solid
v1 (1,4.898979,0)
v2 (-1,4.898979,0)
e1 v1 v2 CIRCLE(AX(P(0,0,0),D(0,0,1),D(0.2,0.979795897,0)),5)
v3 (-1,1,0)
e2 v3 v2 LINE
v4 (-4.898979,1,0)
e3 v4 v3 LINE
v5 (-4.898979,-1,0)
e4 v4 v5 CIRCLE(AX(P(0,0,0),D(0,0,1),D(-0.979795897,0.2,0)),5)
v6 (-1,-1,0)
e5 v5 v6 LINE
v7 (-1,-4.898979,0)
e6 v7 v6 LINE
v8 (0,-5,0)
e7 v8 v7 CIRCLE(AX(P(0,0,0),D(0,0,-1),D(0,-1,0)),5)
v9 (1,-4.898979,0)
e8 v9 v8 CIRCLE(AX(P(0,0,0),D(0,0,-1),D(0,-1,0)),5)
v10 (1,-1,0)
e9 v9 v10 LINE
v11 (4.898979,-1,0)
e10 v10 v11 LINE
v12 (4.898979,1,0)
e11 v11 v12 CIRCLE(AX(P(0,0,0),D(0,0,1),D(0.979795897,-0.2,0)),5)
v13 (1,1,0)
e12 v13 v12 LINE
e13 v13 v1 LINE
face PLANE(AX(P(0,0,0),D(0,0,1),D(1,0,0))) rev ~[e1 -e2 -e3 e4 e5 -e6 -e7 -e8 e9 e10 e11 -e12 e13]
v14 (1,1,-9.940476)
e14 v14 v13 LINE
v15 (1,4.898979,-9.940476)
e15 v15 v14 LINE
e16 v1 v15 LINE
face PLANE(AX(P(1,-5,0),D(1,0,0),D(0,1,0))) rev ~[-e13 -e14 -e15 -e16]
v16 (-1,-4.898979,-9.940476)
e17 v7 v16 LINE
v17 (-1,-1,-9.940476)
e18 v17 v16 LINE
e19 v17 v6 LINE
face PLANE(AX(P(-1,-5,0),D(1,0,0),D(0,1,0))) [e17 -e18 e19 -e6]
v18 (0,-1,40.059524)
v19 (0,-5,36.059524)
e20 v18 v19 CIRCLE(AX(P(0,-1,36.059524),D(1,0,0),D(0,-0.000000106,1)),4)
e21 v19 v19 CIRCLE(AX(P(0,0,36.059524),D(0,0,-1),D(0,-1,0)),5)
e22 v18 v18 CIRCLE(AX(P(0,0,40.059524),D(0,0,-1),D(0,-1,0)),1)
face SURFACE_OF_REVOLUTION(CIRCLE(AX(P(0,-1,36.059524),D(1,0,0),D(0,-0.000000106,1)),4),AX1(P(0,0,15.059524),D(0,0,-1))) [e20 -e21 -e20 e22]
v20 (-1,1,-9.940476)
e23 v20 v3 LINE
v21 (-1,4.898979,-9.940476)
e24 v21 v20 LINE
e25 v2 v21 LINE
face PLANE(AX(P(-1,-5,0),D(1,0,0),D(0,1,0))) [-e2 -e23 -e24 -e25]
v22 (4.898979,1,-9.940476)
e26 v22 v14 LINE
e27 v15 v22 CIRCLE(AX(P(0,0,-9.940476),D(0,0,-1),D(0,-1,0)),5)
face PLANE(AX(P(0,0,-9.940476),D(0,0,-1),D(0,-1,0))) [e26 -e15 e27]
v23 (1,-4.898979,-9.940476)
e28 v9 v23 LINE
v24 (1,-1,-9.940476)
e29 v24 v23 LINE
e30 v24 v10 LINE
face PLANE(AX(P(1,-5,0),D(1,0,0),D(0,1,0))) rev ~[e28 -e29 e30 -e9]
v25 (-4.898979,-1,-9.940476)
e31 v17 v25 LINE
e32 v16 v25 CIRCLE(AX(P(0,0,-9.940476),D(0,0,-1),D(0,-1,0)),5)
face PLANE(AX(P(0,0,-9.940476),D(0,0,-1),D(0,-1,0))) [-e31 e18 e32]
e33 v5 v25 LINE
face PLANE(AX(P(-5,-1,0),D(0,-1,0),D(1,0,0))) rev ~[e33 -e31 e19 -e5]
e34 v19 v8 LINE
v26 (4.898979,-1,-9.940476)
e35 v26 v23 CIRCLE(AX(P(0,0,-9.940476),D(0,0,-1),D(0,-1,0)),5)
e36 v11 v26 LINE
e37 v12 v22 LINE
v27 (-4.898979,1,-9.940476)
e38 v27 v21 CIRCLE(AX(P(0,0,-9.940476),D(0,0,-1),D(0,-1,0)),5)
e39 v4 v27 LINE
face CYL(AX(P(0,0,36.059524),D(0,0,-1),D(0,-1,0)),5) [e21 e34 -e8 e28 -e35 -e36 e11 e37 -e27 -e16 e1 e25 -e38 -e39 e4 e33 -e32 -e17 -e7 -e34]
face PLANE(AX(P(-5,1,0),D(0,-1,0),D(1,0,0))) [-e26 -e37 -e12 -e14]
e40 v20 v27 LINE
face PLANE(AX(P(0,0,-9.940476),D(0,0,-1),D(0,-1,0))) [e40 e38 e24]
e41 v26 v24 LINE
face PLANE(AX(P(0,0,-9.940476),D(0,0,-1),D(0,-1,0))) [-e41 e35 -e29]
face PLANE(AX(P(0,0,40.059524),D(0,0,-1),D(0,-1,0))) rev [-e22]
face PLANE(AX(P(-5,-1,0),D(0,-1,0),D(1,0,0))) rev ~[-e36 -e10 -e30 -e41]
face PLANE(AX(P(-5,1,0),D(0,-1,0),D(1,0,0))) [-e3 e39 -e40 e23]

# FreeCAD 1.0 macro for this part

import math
import FreeCAD as App
import Part
import Sketcher
from FreeCAD import Vector
Q = App.Units.Quantity


def add_polygon(sketch, points):
    """Adds a closed chain of lines whose ends are joined by coincident constraints."""
    first, n = sketch.GeometryCount, len(points)
    for a, b in zip(points, points[1:] + points[:1]):
        sketch.addGeometry(Part.LineSegment(App.Vector(*a, 0), App.Vector(*b, 0)), False)
    for i in range(n):
        sketch.addConstraint(Sketcher.Constraint("Coincident", first + i, 2, first + (i + 1) % n, 1))

doc = App.newDocument("Part")
body = doc.addObject("PartDesign::Body", "Body")

# Sketch on YZ plane
sketch1 = body.newObject("Sketcher::SketchObject", "Sketch")
sketch1.AttachmentSupport = (doc.getObject("YZ_Plane"), [""])
sketch1.MapMode = "FlatFace"
sketch1.addGeometry([
    Part.LineSegment(Vector(0, -9.9, 0), Vector(0, 40.1, 0)),  # 0
    Part.LineSegment(Vector(0, 40.1, 0), Vector(-1, 40.1, 0)),  # 1
    Part.ArcOfCircle(Part.Circle(Vector(-1, 36.1, 0), Vector(0, 0, 1), 4), math.radians(90), math.radians(180)),  # 2
    Part.LineSegment(Vector(-5, 36.1, 0), Vector(-5, -9.9, 0)),  # 3
    Part.LineSegment(Vector(-5, -9.9, 0), Vector(0, -9.9, 0)),  # 4
], False)
sketch1.addConstraint([
    Sketcher.Constraint("Coincident", 0, 2, 1, 1),
    Sketcher.Constraint("Tangent", 1, 2, 2, 1),
    Sketcher.Constraint("Tangent", 2, 2, 3, 1),
    Sketcher.Constraint("Coincident", 3, 2, 4, 1),
    Sketcher.Constraint("Coincident", 4, 2, 0, 1),
    Sketcher.Constraint("Vertical", 0),
    Sketcher.Constraint("Horizontal", 1),
    Sketcher.Constraint("Vertical", 3),
    Sketcher.Constraint("Horizontal", 4),
    Sketcher.Constraint("PointOnObject", 0, 2, -2),
    Sketcher.Constraint("Radius", 2, Q("4 mm")),
    Sketcher.Constraint("DistanceX", 1, 2, 1, 1, Q("1 mm")),
    Sketcher.Constraint("DistanceY", 0, 1, 0, 2, Q("50 mm")),
    Sketcher.Constraint("DistanceY", -1, 1, 2, 3, Q("36.059524 mm")),
])
revolution = body.newObject("PartDesign::Revolution", "Revolution")
revolution.Profile = sketch1
revolution.ReferenceAxis = (sketch1, ["V_Axis"])
revolution.Angle = 360

# Sketch on XY plane
sketch2 = body.newObject("Sketcher::SketchObject", "Sketch001")
sketch2.AttachmentSupport = (doc.getObject("XY_Plane"), [""])
sketch2.MapMode = "FlatFace"
add_polygon(sketch2, [(-5, 1), (-5, -1), (5, -1), (5, 1)])  # lines 0-3
sketch2.addConstraint([
    Sketcher.Constraint("Vertical", 0),
    Sketcher.Constraint("Horizontal", 1),
    Sketcher.Constraint("Vertical", 2),
    Sketcher.Constraint("Horizontal", 3),
    Sketcher.Constraint("Symmetric", 0, 2, 2, 2, -1, 1),
    Sketcher.Constraint("DistanceX", 1, 1, 1, 2, Q("10 mm")),
    Sketcher.Constraint("DistanceY", 0, 2, 0, 1, Q("2 mm")),
])
pocket1 = body.newObject("PartDesign::Pocket", "Pocket")
pocket1.Profile = sketch2
pocket1.Length = 25

# Sketch on XY plane
sketch3 = body.newObject("Sketcher::SketchObject", "Sketch002")
sketch3.AttachmentSupport = (doc.getObject("XY_Plane"), [""])
sketch3.MapMode = "FlatFace"
add_polygon(sketch3, [(-1, 5), (-1, -5), (1, -5), (1, 5)])  # lines 0-3
sketch3.addConstraint([
    Sketcher.Constraint("Vertical", 0),
    Sketcher.Constraint("Horizontal", 1),
    Sketcher.Constraint("Vertical", 2),
    Sketcher.Constraint("Horizontal", 3),
    Sketcher.Constraint("Symmetric", 0, 2, 2, 2, -1, 1),
    Sketcher.Constraint("DistanceX", 1, 1, 1, 2, Q("2 mm")),
    Sketcher.Constraint("DistanceY", 0, 2, 0, 1, Q("10 mm")),
])
pocket2 = body.newObject("PartDesign::Pocket", "Pocket001")
pocket2.Profile = sketch3
pocket2.Length = 25

doc.recompute()
